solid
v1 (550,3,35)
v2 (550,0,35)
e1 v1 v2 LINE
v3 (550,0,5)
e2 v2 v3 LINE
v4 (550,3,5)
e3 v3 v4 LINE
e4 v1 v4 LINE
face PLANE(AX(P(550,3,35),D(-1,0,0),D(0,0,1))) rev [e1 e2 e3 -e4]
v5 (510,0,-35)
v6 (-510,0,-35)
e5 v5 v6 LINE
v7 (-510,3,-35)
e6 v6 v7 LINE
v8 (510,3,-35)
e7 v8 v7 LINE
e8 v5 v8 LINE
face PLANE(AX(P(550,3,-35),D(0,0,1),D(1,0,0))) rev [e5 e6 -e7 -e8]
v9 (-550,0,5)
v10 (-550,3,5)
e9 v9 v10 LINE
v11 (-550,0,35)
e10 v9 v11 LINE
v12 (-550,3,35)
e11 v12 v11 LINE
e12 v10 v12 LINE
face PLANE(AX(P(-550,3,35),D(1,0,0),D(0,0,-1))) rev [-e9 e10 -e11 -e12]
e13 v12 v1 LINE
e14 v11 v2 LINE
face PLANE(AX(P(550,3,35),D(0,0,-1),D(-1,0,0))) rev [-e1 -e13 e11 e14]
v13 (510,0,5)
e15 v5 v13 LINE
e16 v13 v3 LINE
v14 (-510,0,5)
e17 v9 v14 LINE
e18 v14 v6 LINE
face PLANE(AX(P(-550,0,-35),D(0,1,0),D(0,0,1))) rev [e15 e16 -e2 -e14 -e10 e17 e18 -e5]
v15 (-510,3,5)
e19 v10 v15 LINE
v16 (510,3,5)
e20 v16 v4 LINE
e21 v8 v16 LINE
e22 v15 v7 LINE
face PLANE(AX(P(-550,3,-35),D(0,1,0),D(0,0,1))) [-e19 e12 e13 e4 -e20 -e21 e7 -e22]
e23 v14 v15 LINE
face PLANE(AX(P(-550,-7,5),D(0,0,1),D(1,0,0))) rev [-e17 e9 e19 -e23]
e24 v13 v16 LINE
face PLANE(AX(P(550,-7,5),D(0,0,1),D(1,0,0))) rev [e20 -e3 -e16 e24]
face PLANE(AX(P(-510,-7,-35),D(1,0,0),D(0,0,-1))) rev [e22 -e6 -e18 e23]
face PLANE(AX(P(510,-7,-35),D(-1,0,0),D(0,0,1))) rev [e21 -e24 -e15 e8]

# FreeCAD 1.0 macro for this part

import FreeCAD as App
import Part
import Sketcher
from FreeCAD import Vector
Q = App.Units.Quantity


def add_polygon(sketch, points):
    """Adds a closed chain of lines whose ends are joined by coincident constraints."""
    first, n = sketch.GeometryCount, len(points)
    for a, b in zip(points, points[1:] + points[:1]):
        sketch.addGeometry(Part.LineSegment(App.Vector(*a, 0), App.Vector(*b, 0)), False)
    for i in range(n):
        sketch.addConstraint(Sketcher.Constraint("Coincident", first + i, 2, first + (i + 1) % n, 1))

doc = App.newDocument("Part")
body = doc.addObject("PartDesign::Body", "Body")

# Sketch on XZ plane
sketch1 = body.newObject("Sketcher::SketchObject", "Sketch")
sketch1.AttachmentSupport = (doc.getObject("XZ_Plane"), [""])
sketch1.MapMode = "FlatFace"
add_polygon(sketch1, [(-550, -35), (-550, 35), (550, 35), (550, -35)])  # lines 0-3
sketch1.addConstraint(Sketcher.Constraint("Vertical", 0))
sketch1.addConstraint(Sketcher.Constraint("Horizontal", 1))
sketch1.addConstraint(Sketcher.Constraint("Vertical", 2))
sketch1.addConstraint(Sketcher.Constraint("Horizontal", 3))
sketch1.addConstraint(Sketcher.Constraint("Symmetric", 0, 2, 2, 2, -1, 1))
sketch1.addConstraint(Sketcher.Constraint("DistanceX", 1, 1, 1, 2, Q("1100 mm")))
sketch1.addConstraint(Sketcher.Constraint("DistanceY", 0, 1, 0, 2, Q("70 mm")))
pad1 = body.newObject("PartDesign::Pad", "Pad")
pad1.Profile = sketch1
pad1.Length = 3
pad1.Reversed = True

# Sketch on XZ plane
sketch2 = body.newObject("Sketcher::SketchObject", "Sketch001")
sketch2.AttachmentSupport = (doc.getObject("XZ_Plane"), [""])
sketch2.MapMode = "FlatFace"
sketch2.AttachmentOffset = App.Placement(Vector(0, 0, -3), App.Rotation())
add_polygon(sketch2, [(-550, -35), (-550, 5), (-510, 5), (-510, -35)])  # lines 0-3
add_polygon(sketch2, [(510, -35), (510, 5), (550, 5), (550, -35)])  # lines 4-7
sketch2.addConstraint(Sketcher.Constraint("Vertical", 0))
sketch2.addConstraint(Sketcher.Constraint("Horizontal", 1))
sketch2.addConstraint(Sketcher.Constraint("Vertical", 2))
sketch2.addConstraint(Sketcher.Constraint("Horizontal", 3))
sketch2.addConstraint(Sketcher.Constraint("Vertical", 4))
sketch2.addConstraint(Sketcher.Constraint("Horizontal", 5))
sketch2.addConstraint(Sketcher.Constraint("Vertical", 6))
sketch2.addConstraint(Sketcher.Constraint("Horizontal", 7))
sketch2.addConstraint(Sketcher.Constraint("Symmetric", 1, 2, 4, 2, -2))
sketch2.addConstraint(Sketcher.Constraint("Symmetric", 3, 2, 6, 2, -2))
sketch2.addConstraint(Sketcher.Constraint("Equal", 7, 0))
sketch2.addConstraint(Sketcher.Constraint("DistanceX", 1, 1, 1, 2, Q("40 mm")))
sketch2.addConstraint(Sketcher.Constraint("DistanceX", 0, 2, -1, 1, Q("550 mm")))
sketch2.addConstraint(Sketcher.Constraint("DistanceY", -1, 1, 0, 2, Q("5 mm")))
pocket1 = body.newObject("PartDesign::Pocket", "Pocket")
pocket1.Profile = sketch2
pocket1.Length = 10
pocket1.Reversed = True

doc.recompute()
